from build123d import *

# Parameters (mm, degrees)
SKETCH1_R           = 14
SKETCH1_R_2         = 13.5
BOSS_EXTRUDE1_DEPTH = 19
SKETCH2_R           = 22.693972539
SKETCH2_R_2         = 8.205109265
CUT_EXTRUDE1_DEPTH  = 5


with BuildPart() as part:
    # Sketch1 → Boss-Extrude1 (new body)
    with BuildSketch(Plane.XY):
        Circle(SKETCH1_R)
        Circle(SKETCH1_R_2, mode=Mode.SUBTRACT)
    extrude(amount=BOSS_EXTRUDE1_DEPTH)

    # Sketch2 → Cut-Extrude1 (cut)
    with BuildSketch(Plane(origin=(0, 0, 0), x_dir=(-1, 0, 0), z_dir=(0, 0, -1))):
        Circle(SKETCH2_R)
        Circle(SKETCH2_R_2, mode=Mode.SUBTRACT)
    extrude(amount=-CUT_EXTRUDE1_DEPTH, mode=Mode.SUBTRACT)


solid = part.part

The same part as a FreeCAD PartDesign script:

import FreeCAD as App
import Part
import Sketcher
from FreeCAD import Vector

doc = App.newDocument("Part")
body = doc.addObject("PartDesign::Body", "Body")

# Sketch on XY plane
sketch1 = body.newObject("Sketcher::SketchObject", "Sketch")
sketch1.AttachmentSupport = (doc.getObject("XY_Plane"), [""])
sketch1.MapMode = "FlatFace"
sketch1.addGeometry([
    Part.Circle(Vector(0, 0, 0), Vector(0, 0, 1), 14),
    Part.Circle(Vector(0, 0, 0), Vector(0, 0, 1), 14),
], False)
sketch1.addConstraint([
    Sketcher.Constraint("Coincident", 0, 3, -1, 1),
    Sketcher.Constraint("Coincident", 1, 3, -1, 1),
    Sketcher.Constraint("Diameter", 0, 28.0),
    Sketcher.Constraint("Diameter", 1, 27.0),
])
pad1 = body.newObject("PartDesign::Pad", "Pad")
pad1.Profile = sketch1
pad1.Length = 19

# Sketch on XY plane
sketch2 = body.newObject("Sketcher::SketchObject", "Sketch001")
sketch2.AttachmentSupport = (doc.getObject("XY_Plane"), [""])
sketch2.MapMode = "FlatFace"
sketch2.addGeometry([
    Part.Circle(Vector(0, 0, 0), Vector(0, 0, 1), 23),
    Part.Circle(Vector(0, 0, 0), Vector(0, 0, 1), 8),
], False)
sketch2.addConstraint([
    Sketcher.Constraint("Coincident", 0, 3, -1, 1),
    Sketcher.Constraint("Coincident", 1, 3, -1, 1),
    Sketcher.Constraint("Diameter", 1, 16.410219),
    Sketcher.Constraint("Diameter", 0, 45.387945),
])
pocket1 = body.newObject("PartDesign::Pocket", "Pocket")
pocket1.Profile = sketch2
pocket1.Length = 5
pocket1.Reversed = True

doc.recompute()
